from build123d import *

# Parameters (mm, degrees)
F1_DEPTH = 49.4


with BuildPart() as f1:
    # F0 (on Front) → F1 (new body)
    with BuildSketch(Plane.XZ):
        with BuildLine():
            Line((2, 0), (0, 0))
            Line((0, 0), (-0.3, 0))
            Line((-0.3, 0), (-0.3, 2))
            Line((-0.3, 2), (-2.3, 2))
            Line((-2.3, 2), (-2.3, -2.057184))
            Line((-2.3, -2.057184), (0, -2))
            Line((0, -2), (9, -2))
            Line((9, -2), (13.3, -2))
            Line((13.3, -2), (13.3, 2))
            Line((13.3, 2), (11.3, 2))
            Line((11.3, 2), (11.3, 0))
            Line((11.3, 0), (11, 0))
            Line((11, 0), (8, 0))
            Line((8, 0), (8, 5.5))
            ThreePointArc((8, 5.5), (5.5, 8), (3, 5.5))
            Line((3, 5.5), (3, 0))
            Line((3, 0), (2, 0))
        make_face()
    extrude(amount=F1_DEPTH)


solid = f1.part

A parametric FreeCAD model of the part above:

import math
import FreeCAD as App
import Part
import Sketcher

V = App.Vector

doc = App.newDocument("Part")
params = doc.addObject("Spreadsheet::Sheet", "Params")
for row, (alias, value) in enumerate([
    ("sketch1_radius", "2.5 mm"),
    ("sketch1_width", "2 mm"),
    ("sketch1_height", "4 mm"),
    ("sketch1_width2", "13.3 mm"),
    ("sketch1_width3", "3.3 mm"),
    ("pad1_length", "49.4 mm"),
], start=1):
    params.set(f"A{row}", alias)
    params.set(f"B{row}", "=" + value)
    params.setAlias(f"B{row}", alias)

body = doc.addObject("PartDesign::Body", "Body")

sketch1 = doc.addObject("Sketcher::SketchObject", "Sketch")
body.addObject(sketch1)
sketch1.AttachmentSupport = (doc.XZ_Plane, [""])
sketch1.MapMode = "FlatFace"
sketch1.addGeometry([
    Part.LineSegment(V(-0.3, 0, 0), V(-0.3, 2, 0)),
    Part.LineSegment(V(-0.3, 2, 0), V(-2.3, 2, 0)),
    Part.LineSegment(V(-2.3, 2, 0), V(-2.3, -2.057184, 0)),
    Part.LineSegment(V(-2.3, -2.057184, 0), V(0, -2, 0)),
    Part.LineSegment(V(0, -2, 0), V(13.3, -2, 0)),
    Part.LineSegment(V(13.3, -2, 0), V(13.3, 2, 0)),
    Part.LineSegment(V(13.3, 2, 0), V(11.3, 2, 0)),
    Part.LineSegment(V(11.3, 2, 0), V(11.3, 0, 0)),
    Part.LineSegment(V(11.3, 0, 0), V(8, 0, 0)),
    Part.LineSegment(V(8, 0, 0), V(8, 5.5, 0)),
    Part.ArcOfCircle(Part.Circle(V(5.5, 5.5, 0), V(0, 0, 1), 2.5), math.radians(0), math.radians(180)),
    Part.LineSegment(V(3, 5.5, 0), V(3, 0, 0)),
    Part.LineSegment(V(3, 0, 0), V(-0.3, 0, 0)),
], False)
sketch1.addConstraint([
    Sketcher.Constraint("Coincident", 0, 2, 1, 1),
    Sketcher.Constraint("Coincident", 1, 2, 2, 1),
    Sketcher.Constraint("Coincident", 2, 2, 3, 1),
    Sketcher.Constraint("Coincident", 3, 2, 4, 1),
    Sketcher.Constraint("Coincident", 4, 2, 5, 1),
    Sketcher.Constraint("Coincident", 5, 2, 6, 1),
    Sketcher.Constraint("Coincident", 6, 2, 7, 1),
    Sketcher.Constraint("Coincident", 7, 2, 8, 1),
    Sketcher.Constraint("Coincident", 8, 2, 9, 1),
    Sketcher.Constraint("Tangent", 9, 2, 10, 1),
    Sketcher.Constraint("Tangent", 10, 2, 11, 1),
    Sketcher.Constraint("Coincident", 11, 2, 12, 1),
    Sketcher.Constraint("Coincident", 12, 2, 0, 1),
    Sketcher.Constraint("Vertical", 0),
    Sketcher.Constraint("Horizontal", 1),
    Sketcher.Constraint("Vertical", 2),
    Sketcher.Constraint("Horizontal", 4),
    Sketcher.Constraint("Vertical", 5),
    Sketcher.Constraint("Horizontal", 6),
    Sketcher.Constraint("Vertical", 7),
    Sketcher.Constraint("Horizontal", 8),
    Sketcher.Constraint("Vertical", 9),
    Sketcher.Constraint("Vertical", 11),
    Sketcher.Constraint("Horizontal", 12),
    Sketcher.Constraint("PointOnObject", 3, 2, -2),
    Sketcher.Constraint("PointOnObject", 7, 2, -1),
    Sketcher.Constraint("PointOnObject", 11, 2, -1),
    Sketcher.Constraint("Horizontal", 1, 2, 5, 2),
    Sketcher.Constraint("Equal", 1, 6),
    Sketcher.Constraint("Equal", 8, 12),
    Sketcher.Constraint("Equal", 6, 0),
    Sketcher.Constraint("Radius", 10, 2.5),
    Sketcher.Constraint("DistanceX", 1, 2, 1, 1, 2.0),
    Sketcher.Constraint("DistanceY", 5, 1, 5, 2, 4.0),
    Sketcher.Constraint("DistanceX", 4, 1, 4, 2, 13.3),
    Sketcher.Constraint("DistanceX", 8, 2, 8, 1, 3.3),
    Sketcher.Constraint("DistanceY", 9, 1, 9, 2, 5.5),
    Sketcher.Constraint("Distance", 3, 2.300711),
])
sketch1.setExpression("Constraints[31]", "Params.sketch1_radius")
sketch1.setExpression("Constraints[32]", "Params.sketch1_width")
sketch1.setExpression("Constraints[33]", "Params.sketch1_height")
sketch1.setExpression("Constraints[34]", "Params.sketch1_width2")
sketch1.setExpression("Constraints[35]", "Params.sketch1_width3")
pad1 = doc.addObject("PartDesign::Pad", "Pad")
body.addObject(pad1)
pad1.Profile = sketch1
pad1.setExpression("Length", "Params.pad1_length")

doc.recompute()
